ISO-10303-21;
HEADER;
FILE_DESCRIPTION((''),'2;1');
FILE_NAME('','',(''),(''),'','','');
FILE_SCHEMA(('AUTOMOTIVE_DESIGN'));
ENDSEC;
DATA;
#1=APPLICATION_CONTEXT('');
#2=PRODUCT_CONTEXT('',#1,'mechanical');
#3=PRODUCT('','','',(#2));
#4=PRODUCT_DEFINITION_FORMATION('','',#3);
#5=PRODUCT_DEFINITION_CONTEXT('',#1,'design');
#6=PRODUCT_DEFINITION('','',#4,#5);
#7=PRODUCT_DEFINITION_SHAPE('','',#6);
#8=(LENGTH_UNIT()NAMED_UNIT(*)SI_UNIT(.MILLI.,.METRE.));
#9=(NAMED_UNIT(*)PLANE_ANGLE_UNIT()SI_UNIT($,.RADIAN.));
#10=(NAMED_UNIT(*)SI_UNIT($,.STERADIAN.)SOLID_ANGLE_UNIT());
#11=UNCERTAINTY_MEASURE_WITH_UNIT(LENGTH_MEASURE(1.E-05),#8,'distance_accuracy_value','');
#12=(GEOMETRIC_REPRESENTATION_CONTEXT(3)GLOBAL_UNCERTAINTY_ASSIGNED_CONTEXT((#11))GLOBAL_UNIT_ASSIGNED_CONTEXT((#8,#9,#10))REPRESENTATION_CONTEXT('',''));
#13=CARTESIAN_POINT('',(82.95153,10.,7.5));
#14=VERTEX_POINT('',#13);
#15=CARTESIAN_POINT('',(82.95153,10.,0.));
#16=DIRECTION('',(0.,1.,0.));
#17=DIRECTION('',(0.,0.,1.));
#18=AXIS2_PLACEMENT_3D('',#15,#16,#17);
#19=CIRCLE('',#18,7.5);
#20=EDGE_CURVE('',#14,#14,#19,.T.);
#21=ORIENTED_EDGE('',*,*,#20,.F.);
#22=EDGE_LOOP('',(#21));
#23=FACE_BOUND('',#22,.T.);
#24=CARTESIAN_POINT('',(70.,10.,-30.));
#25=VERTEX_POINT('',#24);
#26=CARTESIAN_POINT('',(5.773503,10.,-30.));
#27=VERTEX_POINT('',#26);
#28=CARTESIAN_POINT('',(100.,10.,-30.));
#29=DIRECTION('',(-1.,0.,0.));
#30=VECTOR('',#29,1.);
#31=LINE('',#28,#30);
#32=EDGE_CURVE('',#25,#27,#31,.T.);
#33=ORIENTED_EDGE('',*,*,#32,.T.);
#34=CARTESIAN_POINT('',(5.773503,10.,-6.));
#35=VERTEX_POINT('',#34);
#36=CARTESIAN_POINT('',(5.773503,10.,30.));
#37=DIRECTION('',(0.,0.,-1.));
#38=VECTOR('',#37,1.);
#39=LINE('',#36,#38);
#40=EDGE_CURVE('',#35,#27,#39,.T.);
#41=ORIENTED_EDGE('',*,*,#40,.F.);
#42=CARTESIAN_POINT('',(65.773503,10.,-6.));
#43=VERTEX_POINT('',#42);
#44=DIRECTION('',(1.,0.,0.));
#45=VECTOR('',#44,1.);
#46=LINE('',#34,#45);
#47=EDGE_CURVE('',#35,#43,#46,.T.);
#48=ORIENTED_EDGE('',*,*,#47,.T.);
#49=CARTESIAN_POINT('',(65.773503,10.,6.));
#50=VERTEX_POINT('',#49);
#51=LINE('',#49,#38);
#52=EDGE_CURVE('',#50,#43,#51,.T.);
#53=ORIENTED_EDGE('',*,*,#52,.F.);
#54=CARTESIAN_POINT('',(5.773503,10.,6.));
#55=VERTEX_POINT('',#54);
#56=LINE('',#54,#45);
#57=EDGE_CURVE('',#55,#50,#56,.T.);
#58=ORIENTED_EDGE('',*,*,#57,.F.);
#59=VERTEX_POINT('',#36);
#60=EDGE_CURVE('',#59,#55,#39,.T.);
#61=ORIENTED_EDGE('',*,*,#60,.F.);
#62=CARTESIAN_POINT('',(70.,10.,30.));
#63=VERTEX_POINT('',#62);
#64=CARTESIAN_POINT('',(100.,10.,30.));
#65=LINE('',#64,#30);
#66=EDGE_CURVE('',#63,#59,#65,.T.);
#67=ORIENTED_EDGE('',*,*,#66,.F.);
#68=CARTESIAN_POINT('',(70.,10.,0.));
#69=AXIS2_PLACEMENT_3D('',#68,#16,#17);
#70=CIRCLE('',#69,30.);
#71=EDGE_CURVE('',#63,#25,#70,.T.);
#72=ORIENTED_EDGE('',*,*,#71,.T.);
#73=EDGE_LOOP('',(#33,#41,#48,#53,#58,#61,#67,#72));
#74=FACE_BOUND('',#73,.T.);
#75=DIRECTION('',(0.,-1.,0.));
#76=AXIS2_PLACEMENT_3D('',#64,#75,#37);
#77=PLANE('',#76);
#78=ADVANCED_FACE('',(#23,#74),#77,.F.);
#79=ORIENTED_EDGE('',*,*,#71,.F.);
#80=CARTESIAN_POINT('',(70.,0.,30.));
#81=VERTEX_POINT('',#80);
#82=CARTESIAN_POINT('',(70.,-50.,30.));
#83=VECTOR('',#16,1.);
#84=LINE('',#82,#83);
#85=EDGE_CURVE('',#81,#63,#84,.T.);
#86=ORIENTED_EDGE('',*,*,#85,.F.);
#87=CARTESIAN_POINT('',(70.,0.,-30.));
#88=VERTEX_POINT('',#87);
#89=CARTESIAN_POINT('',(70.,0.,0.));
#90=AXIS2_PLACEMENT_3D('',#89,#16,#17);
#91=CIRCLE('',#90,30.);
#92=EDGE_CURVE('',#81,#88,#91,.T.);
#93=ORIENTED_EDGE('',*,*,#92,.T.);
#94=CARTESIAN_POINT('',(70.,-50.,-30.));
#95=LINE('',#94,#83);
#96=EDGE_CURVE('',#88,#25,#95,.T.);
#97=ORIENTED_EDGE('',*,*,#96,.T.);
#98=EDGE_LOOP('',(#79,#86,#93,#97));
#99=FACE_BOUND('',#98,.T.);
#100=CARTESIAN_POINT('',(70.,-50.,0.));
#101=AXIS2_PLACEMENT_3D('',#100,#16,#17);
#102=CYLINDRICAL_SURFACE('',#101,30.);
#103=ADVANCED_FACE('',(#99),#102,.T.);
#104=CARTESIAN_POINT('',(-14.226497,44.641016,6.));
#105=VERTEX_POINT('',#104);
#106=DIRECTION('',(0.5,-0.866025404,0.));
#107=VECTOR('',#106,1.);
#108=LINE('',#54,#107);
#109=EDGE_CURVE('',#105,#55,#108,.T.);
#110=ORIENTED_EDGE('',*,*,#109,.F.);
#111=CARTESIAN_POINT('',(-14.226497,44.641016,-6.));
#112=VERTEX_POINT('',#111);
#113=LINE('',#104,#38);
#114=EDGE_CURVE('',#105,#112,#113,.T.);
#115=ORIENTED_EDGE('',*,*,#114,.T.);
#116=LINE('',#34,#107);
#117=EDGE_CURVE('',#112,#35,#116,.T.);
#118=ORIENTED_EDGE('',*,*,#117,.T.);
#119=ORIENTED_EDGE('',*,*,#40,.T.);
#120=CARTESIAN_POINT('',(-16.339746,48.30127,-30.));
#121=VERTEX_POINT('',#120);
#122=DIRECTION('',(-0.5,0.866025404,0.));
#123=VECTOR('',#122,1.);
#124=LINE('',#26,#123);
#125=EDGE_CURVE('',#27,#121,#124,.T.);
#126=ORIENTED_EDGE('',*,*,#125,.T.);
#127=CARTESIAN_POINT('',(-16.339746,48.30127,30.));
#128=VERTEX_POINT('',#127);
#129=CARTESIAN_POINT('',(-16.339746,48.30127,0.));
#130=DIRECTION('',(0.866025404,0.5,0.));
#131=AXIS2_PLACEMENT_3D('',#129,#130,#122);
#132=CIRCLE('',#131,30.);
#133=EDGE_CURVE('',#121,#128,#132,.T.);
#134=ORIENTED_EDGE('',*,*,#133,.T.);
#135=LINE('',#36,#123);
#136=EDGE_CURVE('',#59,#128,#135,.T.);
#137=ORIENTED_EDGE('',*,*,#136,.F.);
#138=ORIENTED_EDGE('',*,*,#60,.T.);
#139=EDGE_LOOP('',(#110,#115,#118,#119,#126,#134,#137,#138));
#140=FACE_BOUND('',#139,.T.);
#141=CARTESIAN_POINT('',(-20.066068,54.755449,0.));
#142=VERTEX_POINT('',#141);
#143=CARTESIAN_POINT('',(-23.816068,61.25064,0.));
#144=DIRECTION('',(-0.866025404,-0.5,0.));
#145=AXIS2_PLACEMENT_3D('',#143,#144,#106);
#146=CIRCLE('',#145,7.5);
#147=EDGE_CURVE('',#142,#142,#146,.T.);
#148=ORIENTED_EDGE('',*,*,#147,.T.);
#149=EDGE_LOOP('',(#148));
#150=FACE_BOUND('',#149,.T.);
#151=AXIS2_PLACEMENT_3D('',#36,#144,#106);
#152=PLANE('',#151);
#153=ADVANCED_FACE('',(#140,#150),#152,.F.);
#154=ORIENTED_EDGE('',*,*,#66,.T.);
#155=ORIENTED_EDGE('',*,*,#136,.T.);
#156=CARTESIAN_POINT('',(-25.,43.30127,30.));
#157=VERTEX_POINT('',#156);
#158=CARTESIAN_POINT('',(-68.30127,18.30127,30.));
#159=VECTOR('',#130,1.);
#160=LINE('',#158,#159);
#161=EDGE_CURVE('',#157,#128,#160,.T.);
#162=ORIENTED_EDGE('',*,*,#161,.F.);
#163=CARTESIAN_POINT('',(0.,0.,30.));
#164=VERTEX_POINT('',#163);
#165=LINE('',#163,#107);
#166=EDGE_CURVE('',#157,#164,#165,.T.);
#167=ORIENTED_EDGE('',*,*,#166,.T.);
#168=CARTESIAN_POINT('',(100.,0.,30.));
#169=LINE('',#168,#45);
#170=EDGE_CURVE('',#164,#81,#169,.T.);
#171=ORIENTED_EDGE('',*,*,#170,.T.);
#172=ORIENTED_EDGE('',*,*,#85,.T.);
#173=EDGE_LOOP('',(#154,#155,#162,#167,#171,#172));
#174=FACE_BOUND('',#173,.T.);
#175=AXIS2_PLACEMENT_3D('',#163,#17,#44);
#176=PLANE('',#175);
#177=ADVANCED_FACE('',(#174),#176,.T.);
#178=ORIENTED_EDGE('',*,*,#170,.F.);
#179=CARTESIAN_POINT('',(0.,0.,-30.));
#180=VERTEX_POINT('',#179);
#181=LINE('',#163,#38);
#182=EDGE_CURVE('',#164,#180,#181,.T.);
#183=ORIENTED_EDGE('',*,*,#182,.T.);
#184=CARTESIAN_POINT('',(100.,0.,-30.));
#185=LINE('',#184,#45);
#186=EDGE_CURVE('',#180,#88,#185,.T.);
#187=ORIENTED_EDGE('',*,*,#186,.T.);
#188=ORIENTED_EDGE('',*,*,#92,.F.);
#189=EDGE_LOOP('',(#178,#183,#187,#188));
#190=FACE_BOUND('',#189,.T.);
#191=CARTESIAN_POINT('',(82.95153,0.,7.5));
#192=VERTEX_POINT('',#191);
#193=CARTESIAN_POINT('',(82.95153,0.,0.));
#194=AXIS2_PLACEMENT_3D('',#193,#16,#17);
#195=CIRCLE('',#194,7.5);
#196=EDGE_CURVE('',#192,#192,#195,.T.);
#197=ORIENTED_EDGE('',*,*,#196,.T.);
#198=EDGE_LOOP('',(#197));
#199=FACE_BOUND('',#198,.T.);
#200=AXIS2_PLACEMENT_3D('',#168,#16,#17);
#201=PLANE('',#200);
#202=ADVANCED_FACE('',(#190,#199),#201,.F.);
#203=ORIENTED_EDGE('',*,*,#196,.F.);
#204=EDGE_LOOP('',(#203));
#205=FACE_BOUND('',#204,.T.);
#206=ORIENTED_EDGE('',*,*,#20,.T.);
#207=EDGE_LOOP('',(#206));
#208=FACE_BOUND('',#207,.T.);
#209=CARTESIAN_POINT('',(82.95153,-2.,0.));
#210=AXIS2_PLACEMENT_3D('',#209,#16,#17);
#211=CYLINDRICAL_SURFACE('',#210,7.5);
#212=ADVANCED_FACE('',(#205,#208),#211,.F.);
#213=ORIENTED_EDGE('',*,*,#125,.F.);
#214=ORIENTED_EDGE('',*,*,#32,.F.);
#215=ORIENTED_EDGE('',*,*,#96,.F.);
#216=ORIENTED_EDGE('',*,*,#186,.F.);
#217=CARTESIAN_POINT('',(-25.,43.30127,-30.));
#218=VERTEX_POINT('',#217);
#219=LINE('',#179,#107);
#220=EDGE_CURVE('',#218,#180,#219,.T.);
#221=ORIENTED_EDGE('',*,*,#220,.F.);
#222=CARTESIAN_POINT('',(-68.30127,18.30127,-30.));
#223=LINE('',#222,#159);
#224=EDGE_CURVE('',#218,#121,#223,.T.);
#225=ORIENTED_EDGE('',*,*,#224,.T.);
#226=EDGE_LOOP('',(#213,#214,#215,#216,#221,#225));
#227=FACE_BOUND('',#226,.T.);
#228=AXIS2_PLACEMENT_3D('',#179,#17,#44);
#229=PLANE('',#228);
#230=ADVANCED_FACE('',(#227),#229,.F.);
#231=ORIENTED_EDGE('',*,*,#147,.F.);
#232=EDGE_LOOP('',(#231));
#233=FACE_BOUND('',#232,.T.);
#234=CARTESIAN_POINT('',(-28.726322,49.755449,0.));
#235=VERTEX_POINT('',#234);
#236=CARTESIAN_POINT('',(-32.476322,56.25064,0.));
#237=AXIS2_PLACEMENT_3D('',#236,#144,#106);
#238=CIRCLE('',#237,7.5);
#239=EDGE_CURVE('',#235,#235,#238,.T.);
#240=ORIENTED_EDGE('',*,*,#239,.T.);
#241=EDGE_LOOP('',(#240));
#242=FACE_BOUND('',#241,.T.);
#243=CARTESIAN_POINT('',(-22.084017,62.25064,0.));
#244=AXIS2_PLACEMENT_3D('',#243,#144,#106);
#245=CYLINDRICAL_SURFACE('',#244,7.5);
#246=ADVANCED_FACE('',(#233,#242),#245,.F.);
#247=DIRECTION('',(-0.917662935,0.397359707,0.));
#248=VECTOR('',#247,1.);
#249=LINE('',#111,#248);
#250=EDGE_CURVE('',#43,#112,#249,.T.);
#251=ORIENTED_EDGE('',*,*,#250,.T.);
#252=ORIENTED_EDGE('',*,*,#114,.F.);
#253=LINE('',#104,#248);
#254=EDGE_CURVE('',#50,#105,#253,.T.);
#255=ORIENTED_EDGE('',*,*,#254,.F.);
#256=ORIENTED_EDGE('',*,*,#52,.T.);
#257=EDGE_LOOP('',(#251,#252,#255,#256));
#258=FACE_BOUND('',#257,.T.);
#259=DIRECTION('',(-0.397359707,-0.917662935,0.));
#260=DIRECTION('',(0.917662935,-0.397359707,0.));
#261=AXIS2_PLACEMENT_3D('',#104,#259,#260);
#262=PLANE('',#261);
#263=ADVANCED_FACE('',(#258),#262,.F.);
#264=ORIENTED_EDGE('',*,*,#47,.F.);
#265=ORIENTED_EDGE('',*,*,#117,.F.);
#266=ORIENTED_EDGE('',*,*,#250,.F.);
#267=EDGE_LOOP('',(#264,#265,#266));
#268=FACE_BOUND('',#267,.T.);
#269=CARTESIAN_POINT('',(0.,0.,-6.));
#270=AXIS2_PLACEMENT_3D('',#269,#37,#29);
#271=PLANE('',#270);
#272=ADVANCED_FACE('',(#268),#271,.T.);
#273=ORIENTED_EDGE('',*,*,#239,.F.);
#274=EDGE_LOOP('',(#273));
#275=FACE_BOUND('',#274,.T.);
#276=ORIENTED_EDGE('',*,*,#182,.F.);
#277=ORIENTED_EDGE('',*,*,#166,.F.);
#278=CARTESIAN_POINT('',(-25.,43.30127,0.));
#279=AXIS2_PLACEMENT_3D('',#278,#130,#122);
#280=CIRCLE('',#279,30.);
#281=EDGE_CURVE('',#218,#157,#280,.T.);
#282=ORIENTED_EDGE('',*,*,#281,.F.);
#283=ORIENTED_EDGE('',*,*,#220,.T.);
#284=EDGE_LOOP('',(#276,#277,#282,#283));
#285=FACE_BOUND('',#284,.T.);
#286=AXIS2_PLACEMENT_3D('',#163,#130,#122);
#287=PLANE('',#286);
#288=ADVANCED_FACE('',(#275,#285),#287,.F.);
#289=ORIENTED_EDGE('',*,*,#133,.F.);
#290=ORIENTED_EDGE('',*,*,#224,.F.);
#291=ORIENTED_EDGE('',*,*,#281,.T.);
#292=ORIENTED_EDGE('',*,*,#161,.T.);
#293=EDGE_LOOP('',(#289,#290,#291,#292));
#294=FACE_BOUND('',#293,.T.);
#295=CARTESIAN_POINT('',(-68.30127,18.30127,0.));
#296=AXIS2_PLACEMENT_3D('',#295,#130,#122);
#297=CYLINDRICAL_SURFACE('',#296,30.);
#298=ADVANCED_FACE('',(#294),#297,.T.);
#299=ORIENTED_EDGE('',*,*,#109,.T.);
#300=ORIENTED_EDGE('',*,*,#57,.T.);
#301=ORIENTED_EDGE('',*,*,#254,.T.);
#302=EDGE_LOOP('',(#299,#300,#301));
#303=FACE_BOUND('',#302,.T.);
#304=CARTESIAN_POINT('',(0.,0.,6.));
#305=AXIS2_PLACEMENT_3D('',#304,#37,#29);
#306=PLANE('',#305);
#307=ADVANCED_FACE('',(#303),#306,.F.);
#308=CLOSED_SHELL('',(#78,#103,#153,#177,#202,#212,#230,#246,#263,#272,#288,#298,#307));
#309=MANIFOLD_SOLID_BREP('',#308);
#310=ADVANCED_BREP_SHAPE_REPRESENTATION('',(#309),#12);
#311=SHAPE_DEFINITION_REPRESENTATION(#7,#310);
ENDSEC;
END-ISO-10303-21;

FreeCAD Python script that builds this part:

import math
import FreeCAD as App
import Part
import Sketcher
Q = App.Units.Quantity


def add_polygon(sketch, points):
    """Adds a closed chain of lines whose ends are joined by coincident constraints."""
    first, n = sketch.GeometryCount, len(points)
    for a, b in zip(points, points[1:] + points[:1]):
        sketch.addGeometry(Part.LineSegment(App.Vector(*a, 0), App.Vector(*b, 0)), False)
    for i in range(n):
        sketch.addConstraint(Sketcher.Constraint("Coincident", first + i, 2, first + (i + 1) % n, 1))

doc = App.newDocument("Part")
params = doc.addObject("Spreadsheet::Sheet", "Params")
for row, (alias, value) in enumerate([
    ("sketch1_width", "100 mm"),
    ("sketch1_height", "10 mm"),
    ("sketch1_length", "10 mm"),
    ("sketch1_length2", "80 mm"),
    ("pad1_length", "60 mm"),
    ("sketch2_radius", "30 mm"),
    ("pocket1_length", "60 mm"),
    ("sketch3_radius", "30 mm"),
    ("pocket2_length", "60 mm"),
    ("sketch4_width", "60 mm"),
    ("sketch4_length", "40 mm"),
    ("pad2_length", "12 mm"),
    ("sketch5_diameter", "15 mm"),
    ("pocket3_length", "12 mm"),
    ("sketch6_diameter", "15 mm"),
    ("pocket4_length", "12 mm"),
], start=1):
    params.set(f"A{row}", alias)
    params.set(f"B{row}", "=" + value)
    params.setAlias(f"B{row}", alias)

body = doc.addObject("PartDesign::Body", "Body")

# Sketch on XY plane
sketch1 = body.newObject("Sketcher::SketchObject", "Sketch")
sketch1.AttachmentSupport = (doc.getObject("XY_Plane"), [""])
sketch1.MapMode = "FlatFace"
add_polygon(sketch1, [(0, 0), (100, 0), (100, 10), (6, 10), (-31, 74), (-40, 69)])  # lines 0-5
sketch1.addConstraint([
    Sketcher.Constraint("Horizontal", 0),
    Sketcher.Constraint("Vertical", 1),
    Sketcher.Constraint("Horizontal", 2),
    Sketcher.Constraint("Coincident", 5, 2, -1, 1),
    Sketcher.Constraint("Perpendicular", 3, 4),
    Sketcher.Constraint("Perpendicular", 4, 5),
    Sketcher.Constraint("DistanceX", 0, 1, 0, 2, 100.0),
    Sketcher.Constraint("DistanceY", 1, 1, 1, 2, 10.0),
    Sketcher.Constraint("Angle", 3, Q("120 deg")),
    Sketcher.Constraint("Distance", 4, 10.0),
    Sketcher.Constraint("Distance", 5, 80.0),
])
sketch1.setExpression("Constraints[12]", "Params.sketch1_width")
sketch1.setExpression("Constraints[13]", "Params.sketch1_height")
sketch1.setExpression("Constraints[15]", "Params.sketch1_length")
sketch1.setExpression("Constraints[16]", "Params.sketch1_length2")
pad1 = body.newObject("PartDesign::Pad", "Pad")
pad1.Profile = sketch1
pad1.setExpression("Length", "Params.pad1_length")
pad1.Midplane = True

# Sketch on XZ plane
sketch2 = body.newObject("Sketcher::SketchObject", "Sketch001")
sketch2.AttachmentSupport = (doc.getObject("XZ_Plane"), [""])
sketch2.MapMode = "FlatFace"
sketch2.AttachmentOffset = App.Placement(App.Vector(0, 0, -10), App.Rotation())
sketch2.addGeometry([
    Part.ArcOfCircle(Part.Circle(App.Vector(70, 0, 0), App.Vector(0, 0, 1), 30), math.radians(-90), math.radians(0)),  # 0
    Part.LineSegment(App.Vector(100, 0, 0), App.Vector(100, -30, 0)),  # 1
    Part.LineSegment(App.Vector(100, -30, 0), App.Vector(70, -30, 0)),  # 2
    Part.LineSegment(App.Vector(70, 30, 0), App.Vector(100, 30, 0)),  # 3
    Part.LineSegment(App.Vector(100, 30, 0), App.Vector(100, 0, 0)),  # 4
    Part.ArcOfCircle(Part.Circle(App.Vector(70, 0, 0), App.Vector(0, 0, 1), 30), math.radians(0), math.radians(90)),  # 5
], False)
sketch2.addConstraint([
    Sketcher.Constraint("Tangent", 0, 2, 1, 1),
    Sketcher.Constraint("Coincident", 1, 2, 2, 1),
    Sketcher.Constraint("Tangent", 2, 2, 0, 1),
    Sketcher.Constraint("Coincident", 3, 2, 4, 1),
    Sketcher.Constraint("Tangent", 4, 2, 5, 1),
    Sketcher.Constraint("Tangent", 5, 2, 3, 1),
    Sketcher.Constraint("Vertical", 1),
    Sketcher.Constraint("Horizontal", 2),
    Sketcher.Constraint("Horizontal", 3),
    Sketcher.Constraint("Vertical", 4),
    Sketcher.Constraint("Coincident", 5, 3, 0, 3),
    Sketcher.Constraint("Equal", 0, 5),
    Sketcher.Constraint("PointOnObject", 0, 3, -1),
    Sketcher.Constraint("Radius", 0, 30.0),
    Sketcher.Constraint("DistanceX", -1, 1, 0, 3, 70.0),
])
sketch2.setExpression("Constraints[13]", "Params.sketch2_radius")
pocket1 = body.newObject("PartDesign::Pocket", "Pocket")
pocket1.Profile = sketch2
pocket1.setExpression("Length", "Params.pocket1_length")
pocket1.Reversed = True

# Sketch on an angled plane
sketch3 = body.newObject("Sketcher::SketchObject", "Sketch002")
sketch3.Placement = App.Placement(App.Vector(8.660254, 5, 0), App.Rotation(App.Vector(0, 0, -1), App.Vector(-0.5, 0.866025404, 0), App.Vector(0.866025404, 0.5, 0), "ZXY"))
sketch3.addGeometry([
    Part.ArcOfCircle(Part.Circle(App.Vector(0, 50, 0), App.Vector(0, 0, 1), 30), math.radians(90), math.radians(180)),  # 0
    Part.LineSegment(App.Vector(0, 80, 0), App.Vector(-30, 80, 0)),  # 1
    Part.LineSegment(App.Vector(-30, 80, 0), App.Vector(-30, 50, 0)),  # 2
    Part.ArcOfCircle(Part.Circle(App.Vector(0, 50, 0), App.Vector(0, 0, 1), 30), math.radians(0), math.radians(90)),  # 3
    Part.LineSegment(App.Vector(30, 50, 0), App.Vector(30, 80, 0)),  # 4
    Part.LineSegment(App.Vector(30, 80, 0), App.Vector(0, 80, 0)),  # 5
], False)
sketch3.addConstraint([
    Sketcher.Constraint("Tangent", 0, 1, 1, 1),
    Sketcher.Constraint("Coincident", 1, 2, 2, 1),
    Sketcher.Constraint("Tangent", 2, 2, 0, 2),
    Sketcher.Constraint("Tangent", 3, 1, 4, 1),
    Sketcher.Constraint("Coincident", 4, 2, 5, 1),
    Sketcher.Constraint("Tangent", 5, 2, 3, 2),
    Sketcher.Constraint("Horizontal", 1),
    Sketcher.Constraint("Vertical", 2),
    Sketcher.Constraint("Vertical", 4),
    Sketcher.Constraint("Horizontal", 5),
    Sketcher.Constraint("Coincident", 3, 3, 0, 3),
    Sketcher.Constraint("Equal", 0, 3),
    Sketcher.Constraint("PointOnObject", 0, 3, -2),
    Sketcher.Constraint("Radius", 0, 30.0),
    Sketcher.Constraint("DistanceY", -1, 1, 0, 3, 50.0),
])
sketch3.setExpression("Constraints[13]", "Params.sketch3_radius")
pocket2 = body.newObject("PartDesign::Pocket", "Pocket001")
pocket2.Profile = sketch3
pocket2.setExpression("Length", "Params.pocket2_length")

# Sketch on XY plane
sketch4 = body.newObject("Sketcher::SketchObject", "Sketch003")
sketch4.AttachmentSupport = (doc.getObject("XY_Plane"), [""])
sketch4.MapMode = "FlatFace"
add_polygon(sketch4, [(6, 10), (66, 10), (-14, 45)])  # lines 0-2
sketch4.addConstraint([
    Sketcher.Constraint("Horizontal", 0),
    Sketcher.Constraint("DistanceX", 0, 1, 0, 2, 60.0),
    Sketcher.Constraint("Angle", 2, Q("-60 deg")),
    Sketcher.Constraint("Distance", 2, 40.0),
    Sketcher.Constraint("DistanceY", -1, 1, 0, 2, 10.0),
    Sketcher.Constraint("DistanceX", -1, 1, 0, 2, 65.773503),
])
sketch4.setExpression("Constraints[4]", "Params.sketch4_width")
sketch4.setExpression("Constraints[6]", "Params.sketch4_length")
pad2 = body.newObject("PartDesign::Pad", "Pad001")
pad2.Profile = sketch4
pad2.setExpression("Length", "Params.pad2_length")
pad2.Midplane = True

# Sketch on XZ plane
sketch5 = body.newObject("Sketcher::SketchObject", "Sketch004")
sketch5.AttachmentSupport = (doc.getObject("XZ_Plane"), [""])
sketch5.MapMode = "FlatFace"
sketch5.AttachmentOffset = App.Placement(App.Vector(0, 0, -10), App.Rotation())
sketch5.addGeometry(Part.Circle(App.Vector(83, 0, 0), App.Vector(0, 0, 1), 8), False)
sketch5.addConstraint([
    Sketcher.Constraint("PointOnObject", 0, 3, -1),
    Sketcher.Constraint("Diameter", 0, 15.0),
    Sketcher.Constraint("DistanceX", -1, 1, 0, 3, 82.95153),
])
sketch5.setExpression("Constraints[1]", "Params.sketch5_diameter")
pocket3 = body.newObject("PartDesign::Pocket", "Pocket002")
pocket3.Profile = sketch5
pocket3.setExpression("Length", "Params.pocket3_length")
pocket3.Reversed = True

# Sketch on an angled plane
sketch6 = body.newObject("Sketcher::SketchObject", "Sketch005")
sketch6.Placement = App.Placement(App.Vector(0, 0, 0), App.Rotation(App.Vector(0, 0, 1), App.Vector(-0.5, 0.866025404, 0), App.Vector(-0.866025404, -0.5, 0), "ZXY"))
sketch6.addGeometry(Part.Circle(App.Vector(0, 65, 0), App.Vector(0, 0, 1), 8), False)
sketch6.addConstraint([
    Sketcher.Constraint("PointOnObject", 0, 3, -2),
    Sketcher.Constraint("Diameter", 0, 15.0),
    Sketcher.Constraint("DistanceY", -1, 1, 0, 3, 64.952644),
])
sketch6.setExpression("Constraints[1]", "Params.sketch6_diameter")
pocket4 = body.newObject("PartDesign::Pocket", "Pocket003")
pocket4.Profile = sketch6
pocket4.setExpression("Length", "Params.pocket4_length")

doc.recompute()
